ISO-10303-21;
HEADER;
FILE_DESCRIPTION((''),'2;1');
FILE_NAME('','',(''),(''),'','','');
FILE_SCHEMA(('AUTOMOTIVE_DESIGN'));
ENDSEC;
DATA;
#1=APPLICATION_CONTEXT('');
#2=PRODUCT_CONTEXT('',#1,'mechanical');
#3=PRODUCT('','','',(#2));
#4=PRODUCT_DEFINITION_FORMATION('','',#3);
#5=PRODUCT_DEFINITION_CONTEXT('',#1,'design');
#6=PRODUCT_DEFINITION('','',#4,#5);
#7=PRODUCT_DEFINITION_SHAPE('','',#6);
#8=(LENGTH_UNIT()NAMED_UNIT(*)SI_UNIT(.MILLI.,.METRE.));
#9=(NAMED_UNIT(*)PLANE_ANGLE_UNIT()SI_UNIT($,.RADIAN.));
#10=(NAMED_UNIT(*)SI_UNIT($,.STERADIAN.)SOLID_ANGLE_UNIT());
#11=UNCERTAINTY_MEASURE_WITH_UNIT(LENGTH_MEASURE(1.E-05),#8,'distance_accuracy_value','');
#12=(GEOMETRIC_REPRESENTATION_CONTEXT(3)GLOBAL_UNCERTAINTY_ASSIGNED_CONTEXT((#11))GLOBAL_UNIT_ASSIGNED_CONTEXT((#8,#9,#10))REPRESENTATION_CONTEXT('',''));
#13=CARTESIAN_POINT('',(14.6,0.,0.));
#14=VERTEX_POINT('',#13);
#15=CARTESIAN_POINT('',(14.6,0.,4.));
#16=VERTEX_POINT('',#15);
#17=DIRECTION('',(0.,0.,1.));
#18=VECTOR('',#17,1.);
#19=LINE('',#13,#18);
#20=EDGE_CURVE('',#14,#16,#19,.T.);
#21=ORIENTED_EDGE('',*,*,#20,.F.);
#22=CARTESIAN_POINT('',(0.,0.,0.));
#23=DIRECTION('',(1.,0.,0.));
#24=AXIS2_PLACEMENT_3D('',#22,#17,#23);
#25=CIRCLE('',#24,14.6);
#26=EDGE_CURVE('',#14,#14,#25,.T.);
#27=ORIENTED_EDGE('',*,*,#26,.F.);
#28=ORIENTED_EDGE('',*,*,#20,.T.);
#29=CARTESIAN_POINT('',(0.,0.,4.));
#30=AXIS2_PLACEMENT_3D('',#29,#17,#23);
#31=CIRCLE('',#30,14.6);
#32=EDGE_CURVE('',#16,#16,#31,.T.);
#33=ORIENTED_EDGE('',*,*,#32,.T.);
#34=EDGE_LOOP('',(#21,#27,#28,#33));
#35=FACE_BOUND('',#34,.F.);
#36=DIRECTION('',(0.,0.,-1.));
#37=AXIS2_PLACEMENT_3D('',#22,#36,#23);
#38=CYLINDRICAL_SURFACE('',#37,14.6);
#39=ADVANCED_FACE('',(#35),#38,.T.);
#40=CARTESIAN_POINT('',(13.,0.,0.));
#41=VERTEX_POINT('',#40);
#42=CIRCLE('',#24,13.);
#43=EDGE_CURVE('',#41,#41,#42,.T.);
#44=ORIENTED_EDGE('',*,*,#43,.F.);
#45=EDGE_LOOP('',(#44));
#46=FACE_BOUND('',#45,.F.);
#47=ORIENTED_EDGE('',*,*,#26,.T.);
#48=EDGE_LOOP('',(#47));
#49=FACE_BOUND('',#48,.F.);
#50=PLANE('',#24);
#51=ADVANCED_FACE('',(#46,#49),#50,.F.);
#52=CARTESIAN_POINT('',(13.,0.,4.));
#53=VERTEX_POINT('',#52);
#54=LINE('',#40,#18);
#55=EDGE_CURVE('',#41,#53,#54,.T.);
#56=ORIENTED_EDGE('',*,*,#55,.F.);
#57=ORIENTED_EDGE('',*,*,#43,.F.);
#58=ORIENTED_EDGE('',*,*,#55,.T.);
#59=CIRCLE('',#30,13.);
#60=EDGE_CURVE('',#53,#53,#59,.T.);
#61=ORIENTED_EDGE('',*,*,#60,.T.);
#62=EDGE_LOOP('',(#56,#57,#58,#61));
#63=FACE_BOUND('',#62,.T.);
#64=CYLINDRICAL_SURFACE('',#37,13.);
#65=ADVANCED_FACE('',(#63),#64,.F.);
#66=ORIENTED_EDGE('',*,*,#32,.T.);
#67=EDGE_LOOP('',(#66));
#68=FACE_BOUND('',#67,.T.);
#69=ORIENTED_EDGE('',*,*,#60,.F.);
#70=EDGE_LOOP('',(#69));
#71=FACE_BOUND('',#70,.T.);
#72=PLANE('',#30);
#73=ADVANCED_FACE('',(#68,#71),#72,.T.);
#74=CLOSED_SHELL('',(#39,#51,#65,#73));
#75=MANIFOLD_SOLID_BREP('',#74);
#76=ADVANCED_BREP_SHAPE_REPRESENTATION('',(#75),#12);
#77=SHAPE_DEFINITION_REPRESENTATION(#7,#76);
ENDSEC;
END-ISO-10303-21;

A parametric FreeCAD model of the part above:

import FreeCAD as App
import Part
import Sketcher

doc = App.newDocument("Part")
body = doc.addObject("PartDesign::Body", "Body")

# Sketch on XY plane
sketch1 = body.newObject("Sketcher::SketchObject", "Sketch")
sketch1.AttachmentSupport = (doc.getObject("XY_Plane"), [""])
sketch1.MapMode = "FlatFace"
sketch1.addGeometry([
    Part.Circle(App.Vector(0, 0, 0), App.Vector(0, 0, 1), 15),
    Part.Circle(App.Vector(0, 0, 0), App.Vector(0, 0, 1), 13),
], False)
sketch1.addConstraint([
    Sketcher.Constraint("Coincident", 0, 3, -1, 1),
    Sketcher.Constraint("Coincident", 1, 3, -1, 1),
    Sketcher.Constraint("Diameter", 1, 26.0),
    Sketcher.Constraint("Diameter", 0, 29.2),
])
pad1 = body.newObject("PartDesign::Pad", "Pad")
pad1.Profile = sketch1
pad1.Length = 4

doc.recompute()
